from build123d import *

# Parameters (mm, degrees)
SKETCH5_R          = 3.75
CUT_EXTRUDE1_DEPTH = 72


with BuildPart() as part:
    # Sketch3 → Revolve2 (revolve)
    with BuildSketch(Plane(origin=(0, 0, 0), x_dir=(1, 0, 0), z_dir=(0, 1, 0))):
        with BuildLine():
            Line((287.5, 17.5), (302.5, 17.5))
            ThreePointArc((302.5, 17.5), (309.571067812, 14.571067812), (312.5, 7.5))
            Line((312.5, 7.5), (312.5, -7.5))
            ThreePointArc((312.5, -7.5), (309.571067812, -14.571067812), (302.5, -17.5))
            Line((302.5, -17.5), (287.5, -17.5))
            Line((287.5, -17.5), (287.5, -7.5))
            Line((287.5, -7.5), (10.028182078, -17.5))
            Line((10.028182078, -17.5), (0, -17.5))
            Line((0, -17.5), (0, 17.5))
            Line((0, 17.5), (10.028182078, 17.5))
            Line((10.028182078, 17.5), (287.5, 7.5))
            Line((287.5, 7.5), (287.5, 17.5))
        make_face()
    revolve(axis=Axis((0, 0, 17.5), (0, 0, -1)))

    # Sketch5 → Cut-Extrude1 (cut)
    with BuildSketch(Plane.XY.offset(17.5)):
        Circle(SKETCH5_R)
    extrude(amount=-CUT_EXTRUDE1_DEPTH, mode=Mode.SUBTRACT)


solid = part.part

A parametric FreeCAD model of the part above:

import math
import FreeCAD as App
import Part
import Sketcher
Q = App.Units.Quantity

doc = App.newDocument("Part")
params = doc.addObject("Spreadsheet::Sheet", "Params")
for row, (alias, value) in enumerate([
    ("sketch1_radius", "10 mm"),
    ("sketch1_width", "15 mm"),
    ("revolution_angle", "360 deg"),
    ("sketch2_diameter", "7.5 mm"),
    ("pocket1_length", "72 mm"),
], start=1):
    params.set(f"A{row}", alias)
    params.set(f"B{row}", "=" + value)
    params.setAlias(f"B{row}", alias)

body = doc.addObject("PartDesign::Body", "Body")

sketch1 = body.newObject("Sketcher::SketchObject", "Sketch")
sketch1.AttachmentSupport = (doc.getObject("XZ_Plane"), [""])
sketch1.MapMode = "FlatFace"
sketch1.addGeometry([
    Part.LineSegment(App.Vector(302, -18, 0), App.Vector(288, -18, 0)),
    Part.LineSegment(App.Vector(288, -18, 0), App.Vector(288, -8, 0)),
    Part.LineSegment(App.Vector(288, -8, 0), App.Vector(10, -18, 0)),
    Part.LineSegment(App.Vector(10, -18, 0), App.Vector(0, -18, 0)),
    Part.LineSegment(App.Vector(0, -18, 0), App.Vector(0, 18, 0)),
    Part.LineSegment(App.Vector(0, 18, 0), App.Vector(10, 18, 0)),
    Part.LineSegment(App.Vector(10, 18, 0), App.Vector(288, 8, 0)),
    Part.LineSegment(App.Vector(288, 8, 0), App.Vector(288, 18, 0)),
    Part.LineSegment(App.Vector(288, 18, 0), App.Vector(302, 18, 0)),
    Part.ArcOfCircle(Part.Circle(App.Vector(302, 8, 0), App.Vector(0, 0, 1), 10), math.radians(0), math.radians(90)),
    Part.LineSegment(App.Vector(312, 8, 0), App.Vector(312, -8, 0)),
    Part.ArcOfCircle(Part.Circle(App.Vector(302, -8, 0), App.Vector(0, 0, 1), 10), math.radians(-90), math.radians(0)),
], False)
sketch1.addConstraint([
    Sketcher.Constraint("Coincident", 0, 2, 1, 1),
    Sketcher.Constraint("Coincident", 1, 2, 2, 1),
    Sketcher.Constraint("Coincident", 2, 2, 3, 1),
    Sketcher.Constraint("Coincident", 3, 2, 4, 1),
    Sketcher.Constraint("Coincident", 4, 2, 5, 1),
    Sketcher.Constraint("Coincident", 5, 2, 6, 1),
    Sketcher.Constraint("Coincident", 6, 2, 7, 1),
    Sketcher.Constraint("Coincident", 7, 2, 8, 1),
    Sketcher.Constraint("Tangent", 8, 2, 9, 2),
    Sketcher.Constraint("Tangent", 9, 1, 10, 1),
    Sketcher.Constraint("Tangent", 10, 2, 11, 2),
    Sketcher.Constraint("Tangent", 11, 1, 0, 1),
    Sketcher.Constraint("Horizontal", 0),
    Sketcher.Constraint("Vertical", 1),
    Sketcher.Constraint("Horizontal", 3),
    Sketcher.Constraint("Vertical", 4),
    Sketcher.Constraint("Horizontal", 5),
    Sketcher.Constraint("Vertical", 7),
    Sketcher.Constraint("Horizontal", 8),
    Sketcher.Constraint("Vertical", 10),
    Sketcher.Constraint("Equal", 9, 11),
    Sketcher.Constraint("Symmetric", 3, 2, 4, 2, -1, 1),
    Sketcher.Constraint("Symmetric", 1, 2, 6, 2, -1),
    Sketcher.Constraint("Horizontal", 11, 3, 1, 2),
    Sketcher.Constraint("Horizontal", 0, 2, 2, 2),
    Sketcher.Constraint("Horizontal", 9, 3, 6, 2),
    Sketcher.Constraint("Vertical", 2, 2, 5, 2),
    Sketcher.Constraint("Equal", 8, 10),
    Sketcher.Constraint("Radius", 9, Q("10 mm")),
    Sketcher.Constraint("DistanceX", 0, 2, 0, 1, Q("15 mm")),
    Sketcher.Constraint("DistanceX", -1, 1, 9, 3, Q("302.5 mm")),
    Sketcher.Constraint("DistanceX", 3, 2, 3, 1, Q("10.028182 mm")),
])
sketch1.setExpression("Constraints[28]", "Params.sketch1_radius")
sketch1.setExpression("Constraints[29]", "Params.sketch1_width")
revolution = body.newObject("PartDesign::Revolution", "Revolution")
revolution.Profile = sketch1
revolution.ReferenceAxis = (sketch1, ["V_Axis"])
revolution.setExpression("Angle", "Params.revolution_angle")

sketch2 = body.newObject("Sketcher::SketchObject", "Sketch001")
sketch2.AttachmentSupport = (doc.getObject("XY_Plane"), [""])
sketch2.MapMode = "FlatFace"
sketch2.AttachmentOffset = App.Placement(App.Vector(0, 0, 17.5), App.Rotation())
sketch2.addGeometry(Part.Circle(App.Vector(0, 0, 0), App.Vector(0, 0, 1), 3.8), False)
sketch2.addConstraint([
    Sketcher.Constraint("Coincident", 0, 3, -1, 1),
    Sketcher.Constraint("Diameter", 0, Q("7.5 mm")),
])
sketch2.setExpression("Constraints[1]", "Params.sketch2_diameter")
pocket1 = body.newObject("PartDesign::Pocket", "Pocket")
pocket1.Profile = sketch2
pocket1.setExpression("Length", "Params.pocket1_length")

doc.recompute()
